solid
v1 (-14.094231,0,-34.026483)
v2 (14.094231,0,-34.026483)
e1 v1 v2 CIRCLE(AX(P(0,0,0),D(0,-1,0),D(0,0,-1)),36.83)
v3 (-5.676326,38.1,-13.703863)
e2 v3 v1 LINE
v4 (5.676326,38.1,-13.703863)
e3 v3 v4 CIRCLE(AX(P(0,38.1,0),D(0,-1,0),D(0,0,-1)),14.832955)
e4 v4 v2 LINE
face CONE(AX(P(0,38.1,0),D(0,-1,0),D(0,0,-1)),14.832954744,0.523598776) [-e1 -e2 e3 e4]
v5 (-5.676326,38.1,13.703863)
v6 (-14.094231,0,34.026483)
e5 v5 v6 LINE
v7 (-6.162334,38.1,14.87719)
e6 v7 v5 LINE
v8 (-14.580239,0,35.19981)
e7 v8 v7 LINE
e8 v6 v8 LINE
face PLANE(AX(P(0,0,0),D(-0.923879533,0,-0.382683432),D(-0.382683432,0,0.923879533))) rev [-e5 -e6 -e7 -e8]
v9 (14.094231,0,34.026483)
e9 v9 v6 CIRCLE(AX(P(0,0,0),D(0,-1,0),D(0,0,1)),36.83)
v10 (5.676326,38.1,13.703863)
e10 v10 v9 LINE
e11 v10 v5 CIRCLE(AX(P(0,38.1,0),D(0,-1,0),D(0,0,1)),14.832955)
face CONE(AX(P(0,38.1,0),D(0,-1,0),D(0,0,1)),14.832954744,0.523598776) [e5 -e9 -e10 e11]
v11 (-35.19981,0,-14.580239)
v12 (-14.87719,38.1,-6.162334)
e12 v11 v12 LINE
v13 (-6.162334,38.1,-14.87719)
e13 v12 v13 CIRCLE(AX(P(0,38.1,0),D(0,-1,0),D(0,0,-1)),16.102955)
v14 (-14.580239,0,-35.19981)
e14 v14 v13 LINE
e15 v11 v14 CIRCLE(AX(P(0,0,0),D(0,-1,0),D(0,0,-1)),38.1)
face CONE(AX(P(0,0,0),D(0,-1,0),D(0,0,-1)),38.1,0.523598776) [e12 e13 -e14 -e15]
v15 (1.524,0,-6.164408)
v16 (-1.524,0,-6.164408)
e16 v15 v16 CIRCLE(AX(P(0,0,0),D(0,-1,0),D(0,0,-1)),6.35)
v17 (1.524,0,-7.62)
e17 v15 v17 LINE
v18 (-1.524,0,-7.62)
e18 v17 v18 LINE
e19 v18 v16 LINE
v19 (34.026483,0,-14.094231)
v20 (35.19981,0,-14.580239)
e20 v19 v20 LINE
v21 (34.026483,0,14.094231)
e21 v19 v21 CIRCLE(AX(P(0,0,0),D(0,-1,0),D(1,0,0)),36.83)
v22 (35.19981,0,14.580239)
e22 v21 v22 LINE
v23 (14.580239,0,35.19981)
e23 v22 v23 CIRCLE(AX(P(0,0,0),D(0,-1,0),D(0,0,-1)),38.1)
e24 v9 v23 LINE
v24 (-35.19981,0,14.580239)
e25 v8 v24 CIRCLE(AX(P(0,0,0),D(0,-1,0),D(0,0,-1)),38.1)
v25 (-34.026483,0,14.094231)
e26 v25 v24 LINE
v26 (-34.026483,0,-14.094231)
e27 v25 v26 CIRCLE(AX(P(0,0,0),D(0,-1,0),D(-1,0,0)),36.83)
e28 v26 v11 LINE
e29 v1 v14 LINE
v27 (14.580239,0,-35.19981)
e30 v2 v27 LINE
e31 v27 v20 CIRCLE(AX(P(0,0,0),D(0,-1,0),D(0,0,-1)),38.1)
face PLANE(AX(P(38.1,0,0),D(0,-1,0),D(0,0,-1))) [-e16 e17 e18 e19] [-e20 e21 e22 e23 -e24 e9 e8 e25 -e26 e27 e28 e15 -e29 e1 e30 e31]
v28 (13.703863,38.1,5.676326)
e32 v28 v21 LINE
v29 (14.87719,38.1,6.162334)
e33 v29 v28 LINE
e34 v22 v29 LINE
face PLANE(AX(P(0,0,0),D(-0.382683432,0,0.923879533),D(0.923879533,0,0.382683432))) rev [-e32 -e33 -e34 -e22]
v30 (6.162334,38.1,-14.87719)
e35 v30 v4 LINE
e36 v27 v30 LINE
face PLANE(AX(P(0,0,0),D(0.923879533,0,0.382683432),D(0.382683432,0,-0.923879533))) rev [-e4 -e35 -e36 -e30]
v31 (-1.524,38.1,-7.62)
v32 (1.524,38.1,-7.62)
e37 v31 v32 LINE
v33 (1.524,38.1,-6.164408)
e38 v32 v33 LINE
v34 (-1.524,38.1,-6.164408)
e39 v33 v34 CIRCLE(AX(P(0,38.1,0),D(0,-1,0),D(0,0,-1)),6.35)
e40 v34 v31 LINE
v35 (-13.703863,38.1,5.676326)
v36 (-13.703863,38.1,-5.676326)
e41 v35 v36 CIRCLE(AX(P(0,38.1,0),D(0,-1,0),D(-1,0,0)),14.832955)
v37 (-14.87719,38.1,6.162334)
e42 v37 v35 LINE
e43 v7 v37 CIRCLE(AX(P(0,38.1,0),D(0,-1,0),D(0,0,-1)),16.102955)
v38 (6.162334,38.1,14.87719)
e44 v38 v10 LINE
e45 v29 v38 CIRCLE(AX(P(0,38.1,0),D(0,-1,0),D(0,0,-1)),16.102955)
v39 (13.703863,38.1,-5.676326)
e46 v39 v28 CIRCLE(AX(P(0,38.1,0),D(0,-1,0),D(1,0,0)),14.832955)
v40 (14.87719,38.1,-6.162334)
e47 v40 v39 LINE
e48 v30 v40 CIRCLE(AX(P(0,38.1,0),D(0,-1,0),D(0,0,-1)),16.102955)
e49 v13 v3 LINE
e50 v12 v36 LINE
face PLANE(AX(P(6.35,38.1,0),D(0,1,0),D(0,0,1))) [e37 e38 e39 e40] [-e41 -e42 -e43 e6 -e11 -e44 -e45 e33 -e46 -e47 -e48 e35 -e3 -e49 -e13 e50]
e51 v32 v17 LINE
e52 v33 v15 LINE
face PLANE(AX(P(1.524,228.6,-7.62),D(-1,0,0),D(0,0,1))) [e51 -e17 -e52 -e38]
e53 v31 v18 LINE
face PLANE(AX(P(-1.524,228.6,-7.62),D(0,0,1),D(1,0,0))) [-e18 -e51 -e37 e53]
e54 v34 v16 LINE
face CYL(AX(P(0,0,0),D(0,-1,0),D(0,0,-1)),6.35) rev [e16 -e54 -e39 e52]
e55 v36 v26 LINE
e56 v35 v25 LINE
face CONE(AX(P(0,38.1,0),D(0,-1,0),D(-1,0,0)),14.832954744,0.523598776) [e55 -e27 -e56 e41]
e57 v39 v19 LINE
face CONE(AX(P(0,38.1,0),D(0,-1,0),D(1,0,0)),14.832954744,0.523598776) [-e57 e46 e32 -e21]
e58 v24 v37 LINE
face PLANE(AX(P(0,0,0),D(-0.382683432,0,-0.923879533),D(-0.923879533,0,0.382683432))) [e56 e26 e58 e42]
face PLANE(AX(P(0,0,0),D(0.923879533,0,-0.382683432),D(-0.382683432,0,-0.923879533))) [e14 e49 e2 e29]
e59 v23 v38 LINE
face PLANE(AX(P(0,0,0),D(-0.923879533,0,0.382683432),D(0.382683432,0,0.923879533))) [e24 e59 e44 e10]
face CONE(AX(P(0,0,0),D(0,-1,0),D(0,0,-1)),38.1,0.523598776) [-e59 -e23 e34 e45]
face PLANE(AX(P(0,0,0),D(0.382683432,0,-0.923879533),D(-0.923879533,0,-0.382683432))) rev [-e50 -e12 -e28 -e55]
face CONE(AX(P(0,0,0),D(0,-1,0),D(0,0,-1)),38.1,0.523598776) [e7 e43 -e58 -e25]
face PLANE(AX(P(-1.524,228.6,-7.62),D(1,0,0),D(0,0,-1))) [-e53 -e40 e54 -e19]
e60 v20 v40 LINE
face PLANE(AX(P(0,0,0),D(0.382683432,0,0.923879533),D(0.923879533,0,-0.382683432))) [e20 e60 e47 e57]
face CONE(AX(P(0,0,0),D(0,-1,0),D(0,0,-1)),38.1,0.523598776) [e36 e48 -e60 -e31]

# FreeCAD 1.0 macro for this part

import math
import FreeCAD as App
import Part
import Sketcher
from FreeCAD import Vector
Q = App.Units.Quantity

doc = App.newDocument("Part")
body = doc.addObject("PartDesign::Body", "Body")

# Sketch on XY plane
sketch1 = doc.addObject("Sketcher::SketchObject", "Sketch")
body.addObject(sketch1)
sketch1.AttachmentSupport = (doc.XY_Plane, [""])
sketch1.MapMode = "FlatFace"
sketch1.addGeometry([
    Part.LineSegment(Vector(6, 38, 0), Vector(6, 0, 0)),
    Part.LineSegment(Vector(6, 0, 0), Vector(38, 0, 0)),
    Part.LineSegment(Vector(38, 0, 0), Vector(16, 38, 0)),
    Part.LineSegment(Vector(16, 38, 0), Vector(6, 38, 0)),
], False)
sketch1.addConstraint([
    Sketcher.Constraint("Coincident", 0, 2, 1, 1),
    Sketcher.Constraint("Coincident", 1, 2, 2, 1),
    Sketcher.Constraint("Coincident", 2, 2, 3, 1),
    Sketcher.Constraint("Coincident", 3, 2, 0, 1),
    Sketcher.Constraint("Vertical", 0),
    Sketcher.Constraint("Horizontal", 1),
    Sketcher.Constraint("Horizontal", 3),
    Sketcher.Constraint("PointOnObject", 0, 2, -1),
    Sketcher.Constraint("DistanceY", 0, 2, 0, 1, Q("1.5 in")),
    Sketcher.Constraint("Angle", 2, Q("120 deg")),
    Sketcher.Constraint("DistanceX", 1, 1, 1, 2, Q("1.25 in")),
    Sketcher.Constraint("DistanceX", -1, 1, 1, 2, Q("1.5 in")),
])
revolution = doc.addObject("PartDesign::Revolution", "Revolution")
body.addObject(revolution)
revolution.Profile = sketch1
revolution.ReferenceAxis = (sketch1, ["V_Axis"])
revolution.Angle = 360

# Sketch on XZ plane
sketch2 = doc.addObject("Sketcher::SketchObject", "Sketch001")
body.addObject(sketch2)
sketch2.AttachmentSupport = (doc.XZ_Plane, [""])
sketch2.MapMode = "FlatFace"
sketch2.AttachmentOffset = App.Placement(Vector(0, 0, -1.5 * 25.4), App.Rotation())
sketch2.addGeometry([
    Part.LineSegment(Vector(1.5, -7.6, 0), Vector(-1.5, -7.6, 0)),
    Part.LineSegment(Vector(-1.5, -7.6, 0), Vector(-1.5, -6.2, 0)),
    Part.ArcOfCircle(Part.Circle(Vector(0, 0, 0), Vector(0, 0, 1), 6.4), math.radians(-104), math.radians(-76)),
    Part.LineSegment(Vector(1.5, -6.2, 0), Vector(1.5, -7.6, 0)),
], False)
sketch2.addConstraint([
    Sketcher.Constraint("Coincident", 0, 2, 1, 1),
    Sketcher.Constraint("Coincident", 1, 2, 2, 1),
    Sketcher.Constraint("Coincident", 2, 2, 3, 1),
    Sketcher.Constraint("Coincident", 3, 2, 0, 1),
    Sketcher.Constraint("Horizontal", 0),
    Sketcher.Constraint("Vertical", 1),
    Sketcher.Constraint("Vertical", 3),
    Sketcher.Constraint("Coincident", 2, 3, -1, 1),
    Sketcher.Constraint("Horizontal", 1, 2, 2, 2),
    Sketcher.Constraint("Radius", 2, Q("0.25 in")),
    Sketcher.Constraint("DistanceX", 0, 2, 0, 1, Q("0.12 in")),
    Sketcher.Constraint("DistanceY", 0, 2, -1, 1, Q("0.3 in")),
])
pocket1 = doc.addObject("PartDesign::Pocket", "Pocket")
body.addObject(pocket1)
pocket1.Profile = sketch2
pocket1.Type = "ThroughAll"
pocket1.Midplane = True

# Sketch on YZ plane
sketch3 = doc.addObject("Sketcher::SketchObject", "Sketch002")
body.addObject(sketch3)
sketch3.AttachmentSupport = (doc.YZ_Plane, [""])
sketch3.MapMode = "FlatFace"
sketch3.addGeometry([
    Part.LineSegment(Vector(38.1, -16.1, 0), Vector(38.1, -14.8, 0)),
    Part.LineSegment(Vector(38.1, -14.8, 0), Vector(0, -36.8, 0)),
    Part.LineSegment(Vector(0, -36.8, 0), Vector(0, -38.1, 0)),
    Part.LineSegment(Vector(0, -38.1, 0), Vector(38.1, -16.1, 0)),
], False)
sketch3.addConstraint([
    Sketcher.Constraint("Coincident", 0, 2, 1, 1),
    Sketcher.Constraint("Coincident", 1, 2, 2, 1),
    Sketcher.Constraint("Coincident", 2, 2, 3, 1),
    Sketcher.Constraint("Coincident", 3, 2, 0, 1),
    Sketcher.Constraint("Vertical", 0),
    Sketcher.Constraint("Vertical", 2),
    Sketcher.Constraint("PointOnObject", 1, 2, -2),
    Sketcher.Constraint("Parallel", 1, 3),
    Sketcher.Constraint("Angle", 1, Q("-150 deg")),
    Sketcher.Constraint("DistanceY", 0, 1, 0, 2, Q("0.05 in")),
    Sketcher.Constraint("DistanceX", -1, 1, 0, 2, Q("1.5 in")),
    Sketcher.Constraint("DistanceY", 2, 2, -1, 1, Q("1.5 in")),
])
groove = doc.addObject("PartDesign::Groove", "Groove")
body.addObject(groove)
groove.Profile = sketch3
groove.ReferenceAxis = (sketch3, ["H_Axis"])
groove.Angle = 22.5

# Sketch on YZ plane
sketch4 = doc.addObject("Sketcher::SketchObject", "Sketch003")
body.addObject(sketch4)
sketch4.AttachmentSupport = (doc.YZ_Plane, [""])
sketch4.MapMode = "FlatFace"
sketch4.addGeometry([
    Part.LineSegment(Vector(38.1, -16.1, 0), Vector(38.1, -14.8, 0)),
    Part.LineSegment(Vector(38.1, -14.8, 0), Vector(0, -36.8, 0)),
    Part.LineSegment(Vector(0, -36.8, 0), Vector(0, -38.1, 0)),
    Part.LineSegment(Vector(0, -38.1, 0), Vector(38.1, -16.1, 0)),
], False)
sketch4.addConstraint([
    Sketcher.Constraint("Coincident", 0, 2, 1, 1),
    Sketcher.Constraint("Coincident", 1, 2, 2, 1),
    Sketcher.Constraint("Coincident", 2, 2, 3, 1),
    Sketcher.Constraint("Coincident", 3, 2, 0, 1),
    Sketcher.Constraint("Vertical", 0),
    Sketcher.Constraint("Vertical", 2),
    Sketcher.Constraint("PointOnObject", 1, 2, -2),
    Sketcher.Constraint("Parallel", 1, 3),
    Sketcher.Constraint("Angle", 1, Q("-150 deg")),
    Sketcher.Constraint("DistanceY", 0, 1, 0, 2, Q("0.05 in")),
    Sketcher.Constraint("DistanceX", -1, 1, 0, 2, Q("1.5 in")),
    Sketcher.Constraint("DistanceY", 2, 2, -1, 1, Q("1.5 in")),
])
groove2 = doc.addObject("PartDesign::Groove", "Groove001")
body.addObject(groove2)
groove2.Profile = sketch4
groove2.ReferenceAxis = (sketch4, ["H_Axis"])
groove2.Angle = 22.5
groove2.Reversed = True
doc.recompute()

polarpattern = doc.addObject("PartDesign::PolarPattern", "PolarPattern")
body.addObject(polarpattern)
polarpattern.Originals = [groove, groove2]
polarpattern.Axis = (doc.Y_Axis, [""])
polarpattern.Angle = 360
polarpattern.Occurrences = 4
body.Tip = polarpattern

doc.recompute()
